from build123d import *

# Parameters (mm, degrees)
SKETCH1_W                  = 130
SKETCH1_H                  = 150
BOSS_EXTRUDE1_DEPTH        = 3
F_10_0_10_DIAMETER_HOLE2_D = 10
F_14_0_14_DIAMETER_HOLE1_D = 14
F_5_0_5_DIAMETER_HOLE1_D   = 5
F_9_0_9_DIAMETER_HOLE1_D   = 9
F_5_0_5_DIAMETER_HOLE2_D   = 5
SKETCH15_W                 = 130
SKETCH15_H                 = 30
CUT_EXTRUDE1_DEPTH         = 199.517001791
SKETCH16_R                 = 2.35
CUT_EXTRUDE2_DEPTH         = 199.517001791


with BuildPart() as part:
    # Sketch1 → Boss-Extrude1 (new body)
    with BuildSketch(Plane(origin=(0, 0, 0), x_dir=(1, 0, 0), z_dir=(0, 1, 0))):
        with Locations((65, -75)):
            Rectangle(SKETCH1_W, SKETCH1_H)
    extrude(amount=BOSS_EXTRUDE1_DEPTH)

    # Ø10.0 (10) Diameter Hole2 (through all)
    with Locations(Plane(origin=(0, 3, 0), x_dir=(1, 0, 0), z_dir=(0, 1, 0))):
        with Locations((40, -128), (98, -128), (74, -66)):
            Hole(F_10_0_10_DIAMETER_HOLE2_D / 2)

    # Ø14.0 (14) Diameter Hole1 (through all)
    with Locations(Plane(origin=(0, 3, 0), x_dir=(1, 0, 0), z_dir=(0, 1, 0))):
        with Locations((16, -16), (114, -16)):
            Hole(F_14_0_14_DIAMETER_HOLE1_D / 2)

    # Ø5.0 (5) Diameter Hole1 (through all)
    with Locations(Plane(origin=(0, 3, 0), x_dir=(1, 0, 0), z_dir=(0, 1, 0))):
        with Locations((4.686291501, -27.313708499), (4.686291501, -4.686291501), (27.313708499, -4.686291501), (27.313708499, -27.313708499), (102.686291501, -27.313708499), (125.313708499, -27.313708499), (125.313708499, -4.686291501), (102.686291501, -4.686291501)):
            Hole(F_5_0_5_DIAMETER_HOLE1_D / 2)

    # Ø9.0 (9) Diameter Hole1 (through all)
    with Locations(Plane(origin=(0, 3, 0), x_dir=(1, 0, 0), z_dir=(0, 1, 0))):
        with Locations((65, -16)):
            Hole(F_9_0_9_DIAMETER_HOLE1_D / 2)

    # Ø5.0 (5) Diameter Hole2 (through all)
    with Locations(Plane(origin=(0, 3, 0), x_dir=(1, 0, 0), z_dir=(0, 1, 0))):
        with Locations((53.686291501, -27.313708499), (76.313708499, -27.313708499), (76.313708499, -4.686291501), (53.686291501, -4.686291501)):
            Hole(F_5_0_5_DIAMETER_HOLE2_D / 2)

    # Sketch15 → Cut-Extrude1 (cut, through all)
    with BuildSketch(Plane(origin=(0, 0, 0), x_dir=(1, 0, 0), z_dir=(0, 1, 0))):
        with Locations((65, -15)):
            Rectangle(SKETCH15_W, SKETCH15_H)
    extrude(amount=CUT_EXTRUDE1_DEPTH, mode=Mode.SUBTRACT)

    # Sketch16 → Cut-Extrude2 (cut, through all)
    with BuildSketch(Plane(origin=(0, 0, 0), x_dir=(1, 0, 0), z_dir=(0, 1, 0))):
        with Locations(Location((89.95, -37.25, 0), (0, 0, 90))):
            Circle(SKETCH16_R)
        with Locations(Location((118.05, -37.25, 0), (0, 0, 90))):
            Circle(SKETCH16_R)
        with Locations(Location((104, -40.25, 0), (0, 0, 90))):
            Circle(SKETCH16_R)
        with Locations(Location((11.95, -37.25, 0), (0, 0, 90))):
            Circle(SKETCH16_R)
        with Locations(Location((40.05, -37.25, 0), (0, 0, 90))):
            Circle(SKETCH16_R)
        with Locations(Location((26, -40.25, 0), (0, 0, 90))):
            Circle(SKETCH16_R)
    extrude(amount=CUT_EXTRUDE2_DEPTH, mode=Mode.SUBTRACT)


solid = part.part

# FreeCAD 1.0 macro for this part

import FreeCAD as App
import Part
import Sketcher

V = App.Vector

doc = App.newDocument("Part")
params = doc.addObject("Spreadsheet::Sheet", "Params")
for row, (alias, value) in enumerate([
    ("sketch1_width", "130 mm"),
    ("sketch1_height", "150 mm"),
    ("pad1_length", "3 mm"),
    ("sketch2_diameter", "10 mm"),
    ("hole_diameter", "10 mm"),
    ("sketch3_diameter", "14 mm"),
    ("hole2_diameter", "14 mm"),
    ("sketch4_diameter", "5 mm"),
    ("hole3_diameter", "5 mm"),
    ("sketch5_diameter", "9 mm"),
    ("hole4_diameter", "9 mm"),
    ("sketch6_diameter", "5 mm"),
    ("hole5_diameter", "5 mm"),
    ("sketch7_width", "130 mm"),
    ("sketch7_height", "30 mm"),
    ("sketch8_diameter", "4.7 mm"),
], start=1):
    params.set(f"A{row}", alias)
    params.set(f"B{row}", "=" + value)
    params.setAlias(f"B{row}", alias)

body = doc.addObject("PartDesign::Body", "Body")

# Sketch on XZ plane
sketch1 = body.newObject("Sketcher::SketchObject", "Sketch")
sketch1.AttachmentSupport = (doc.getObject("XZ_Plane"), [""])
sketch1.MapMode = "FlatFace"
sketch1.addGeometry([
    Part.LineSegment(V(0, 0, 0), V(0, 150, 0)),
    Part.LineSegment(V(0, 150, 0), V(130, 150, 0)),
    Part.LineSegment(V(130, 150, 0), V(130, 0, 0)),
    Part.LineSegment(V(130, 0, 0), V(0, 0, 0)),
], False)
sketch1.addConstraint([
    Sketcher.Constraint("Coincident", 0, 2, 1, 1),
    Sketcher.Constraint("Coincident", 1, 2, 2, 1),
    Sketcher.Constraint("Coincident", 2, 2, 3, 1),
    Sketcher.Constraint("Coincident", 3, 2, 0, 1),
    Sketcher.Constraint("Vertical", 0),
    Sketcher.Constraint("Horizontal", 1),
    Sketcher.Constraint("Vertical", 2),
    Sketcher.Constraint("Horizontal", 3),
    Sketcher.Constraint("Coincident", 3, 2, -1, 1),
    Sketcher.Constraint("DistanceX", 1, 1, 1, 2, 130.0),
    Sketcher.Constraint("DistanceY", 0, 1, 0, 2, 150.0),
])
sketch1.setExpression("Constraints[9]", "Params.sketch1_width")
sketch1.setExpression("Constraints[10]", "Params.sketch1_height")
pad1 = body.newObject("PartDesign::Pad", "Pad")
pad1.Profile = sketch1
pad1.setExpression("Length", "Params.pad1_length")
pad1.Reversed = True

# Sketch on XZ plane
sketch2 = body.newObject("Sketcher::SketchObject", "Sketch001")
sketch2.AttachmentSupport = (doc.getObject("XZ_Plane"), [""])
sketch2.MapMode = "FlatFace"
sketch2.AttachmentOffset = App.Placement(V(0, 0, -3), App.Rotation())
sketch2.addGeometry([
    Part.Circle(V(40, 128, 0), V(0, 0, 1), 5),
    Part.Circle(V(98, 128, 0), V(0, 0, 1), 5),
    Part.Circle(V(74, 66, 0), V(0, 0, 1), 5),
], False)
sketch2.addConstraint([
    Sketcher.Constraint("Equal", 0, 1),
    Sketcher.Constraint("Equal", 1, 2),
    Sketcher.Constraint("Horizontal", 0, 3, 1, 3),
    Sketcher.Constraint("Diameter", 0, 10.0),
    Sketcher.Constraint("DistanceX", -1, 1, 0, 3, 40.0),
    Sketcher.Constraint("DistanceY", -1, 1, 0, 3, 128.0),
    Sketcher.Constraint("DistanceX", -1, 1, 1, 3, 98.0),
    Sketcher.Constraint("DistanceX", -1, 1, 2, 3, 74.0),
    Sketcher.Constraint("DistanceY", -1, 1, 2, 3, 66.0),
])
sketch2.setExpression("Constraints[3]", "Params.sketch2_diameter")
doc.recompute()
hole = body.newObject("PartDesign::Hole", "Hole")
hole.Profile = sketch2
hole.ThreadType = "None"
hole.setExpression("Diameter", "Params.hole_diameter")
hole.DepthType = "ThroughAll"
hole.Reversed = True

# Sketch on XZ plane
sketch3 = body.newObject("Sketcher::SketchObject", "Sketch002")
sketch3.AttachmentSupport = (doc.getObject("XZ_Plane"), [""])
sketch3.MapMode = "FlatFace"
sketch3.AttachmentOffset = App.Placement(V(0, 0, -3), App.Rotation())
sketch3.addGeometry([
    Part.Circle(V(16, 16, 0), V(0, 0, 1), 7),
    Part.Circle(V(114, 16, 0), V(0, 0, 1), 7),
], False)
sketch3.addConstraint([
    Sketcher.Constraint("Equal", 0, 1),
    Sketcher.Constraint("Horizontal", 0, 3, 1, 3),
    Sketcher.Constraint("Diameter", 0, 14.0),
    Sketcher.Constraint("DistanceX", -1, 1, 0, 3, 16.0),
    Sketcher.Constraint("DistanceY", -1, 1, 0, 3, 16.0),
    Sketcher.Constraint("DistanceX", -1, 1, 1, 3, 114.0),
])
sketch3.setExpression("Constraints[2]", "Params.sketch3_diameter")
doc.recompute()
hole2 = body.newObject("PartDesign::Hole", "Hole001")
hole2.Profile = sketch3
hole2.ThreadType = "None"
hole2.setExpression("Diameter", "Params.hole2_diameter")
hole2.DepthType = "ThroughAll"
hole2.Reversed = True

# Sketch on XZ plane
sketch4 = body.newObject("Sketcher::SketchObject", "Sketch003")
sketch4.AttachmentSupport = (doc.getObject("XZ_Plane"), [""])
sketch4.MapMode = "FlatFace"
sketch4.AttachmentOffset = App.Placement(V(0, 0, -3), App.Rotation())
sketch4.addGeometry([
    Part.Circle(V(4.686292, 27.313708, 0), V(0, 0, 1), 2.5),  # 0
    Part.Circle(V(4.686292, 4.686292, 0), V(0, 0, 1), 2.5),  # 1
    Part.Circle(V(27.313708, 4.686292, 0), V(0, 0, 1), 2.5),  # 2
    Part.Circle(V(27.313708, 27.313708, 0), V(0, 0, 1), 2.5),  # 3
    Part.Circle(V(102.686292, 27.313708, 0), V(0, 0, 1), 2.5),  # 4
    Part.Circle(V(125.313708, 27.313708, 0), V(0, 0, 1), 2.5),  # 5
    Part.Circle(V(125.313708, 4.686292, 0), V(0, 0, 1), 2.5),  # 6
    Part.Circle(V(102.686292, 4.686292, 0), V(0, 0, 1), 2.5),  # 7
], False)
sketch4.addConstraint([
    Sketcher.Constraint("Equal", 0, 1),
    Sketcher.Constraint("Equal", 1, 2),
    Sketcher.Constraint("Equal", 2, 3),
    Sketcher.Constraint("Equal", 3, 4),
    Sketcher.Constraint("Equal", 4, 5),
    Sketcher.Constraint("Equal", 5, 6),
    Sketcher.Constraint("Equal", 6, 7),
    Sketcher.Constraint("Horizontal", 1, 3, 2, 3),
    Sketcher.Constraint("Horizontal", 0, 3, 3, 3),
    Sketcher.Constraint("Horizontal", 3, 3, 4, 3),
    Sketcher.Constraint("Horizontal", 4, 3, 5, 3),
    Sketcher.Constraint("Horizontal", 2, 3, 6, 3),
    Sketcher.Constraint("Horizontal", 6, 3, 7, 3),
    Sketcher.Constraint("Vertical", 0, 3, 1, 3),
    Sketcher.Constraint("Vertical", 2, 3, 3, 3),
    Sketcher.Constraint("Vertical", 5, 3, 6, 3),
    Sketcher.Constraint("Vertical", 4, 3, 7, 3),
    Sketcher.Constraint("Diameter", 0, 5.0),
    Sketcher.Constraint("DistanceX", 0, 3, 4, 3, 98.0),
    Sketcher.Constraint("DistanceX", 3, 3, 5, 3, 98.0),
    Sketcher.Constraint("DistanceX", -1, 1, 0, 3, 4.686292),
    Sketcher.Constraint("DistanceY", -1, 1, 0, 3, 27.313708),
    Sketcher.Constraint("DistanceY", -1, 1, 1, 3, 4.686292),
    Sketcher.Constraint("DistanceX", -1, 1, 2, 3, 27.313708),
])
sketch4.setExpression("Constraints[17]", "Params.sketch4_diameter")
doc.recompute()
hole3 = body.newObject("PartDesign::Hole", "Hole002")
hole3.Profile = sketch4
hole3.ThreadType = "None"
hole3.setExpression("Diameter", "Params.hole3_diameter")
hole3.DepthType = "ThroughAll"
hole3.Reversed = True

# Sketch on XZ plane
sketch5 = body.newObject("Sketcher::SketchObject", "Sketch004")
sketch5.AttachmentSupport = (doc.getObject("XZ_Plane"), [""])
sketch5.MapMode = "FlatFace"
sketch5.AttachmentOffset = App.Placement(V(0, 0, -3), App.Rotation())
sketch5.addGeometry(Part.Circle(V(65, 16, 0), V(0, 0, 1), 4.5), False)
sketch5.addConstraint([
    Sketcher.Constraint("Diameter", 0, 9.0),
    Sketcher.Constraint("DistanceX", -1, 1, 0, 3, 65.0),
    Sketcher.Constraint("DistanceY", -1, 1, 0, 3, 16.0),
])
sketch5.setExpression("Constraints[0]", "Params.sketch5_diameter")
doc.recompute()
hole4 = body.newObject("PartDesign::Hole", "Hole003")
hole4.Profile = sketch5
hole4.ThreadType = "None"
hole4.setExpression("Diameter", "Params.hole4_diameter")
hole4.DepthType = "ThroughAll"
hole4.Reversed = True

# Sketch on XZ plane
sketch6 = body.newObject("Sketcher::SketchObject", "Sketch005")
sketch6.AttachmentSupport = (doc.getObject("XZ_Plane"), [""])
sketch6.MapMode = "FlatFace"
sketch6.AttachmentOffset = App.Placement(V(0, 0, -3), App.Rotation())
sketch6.addGeometry([
    Part.Circle(V(53.686292, 27.313708, 0), V(0, 0, 1), 2.5),
    Part.Circle(V(76.313708, 27.313708, 0), V(0, 0, 1), 2.5),
    Part.Circle(V(76.313708, 4.686292, 0), V(0, 0, 1), 2.5),
    Part.Circle(V(53.686292, 4.686292, 0), V(0, 0, 1), 2.5),
], False)
sketch6.addConstraint([
    Sketcher.Constraint("Equal", 0, 1),
    Sketcher.Constraint("Equal", 1, 2),
    Sketcher.Constraint("Equal", 2, 3),
    Sketcher.Constraint("Horizontal", 0, 3, 1, 3),
    Sketcher.Constraint("Horizontal", 2, 3, 3, 3),
    Sketcher.Constraint("Vertical", 1, 3, 2, 3),
    Sketcher.Constraint("Vertical", 0, 3, 3, 3),
    Sketcher.Constraint("Diameter", 0, 5.0),
    Sketcher.Constraint("DistanceX", -1, 1, 0, 3, 53.686292),
    Sketcher.Constraint("DistanceY", -1, 1, 0, 3, 27.313708),
    Sketcher.Constraint("DistanceX", -1, 1, 1, 3, 76.313708),
    Sketcher.Constraint("DistanceY", -1, 1, 2, 3, 4.686292),
])
sketch6.setExpression("Constraints[7]", "Params.sketch6_diameter")
doc.recompute()
hole5 = body.newObject("PartDesign::Hole", "Hole004")
hole5.Profile = sketch6
hole5.ThreadType = "None"
hole5.setExpression("Diameter", "Params.hole5_diameter")
hole5.DepthType = "ThroughAll"
hole5.Reversed = True

# Sketch on XZ plane
sketch7 = body.newObject("Sketcher::SketchObject", "Sketch006")
sketch7.AttachmentSupport = (doc.getObject("XZ_Plane"), [""])
sketch7.MapMode = "FlatFace"
sketch7.addGeometry([
    Part.LineSegment(V(0, 0, 0), V(0, 30, 0)),
    Part.LineSegment(V(0, 30, 0), V(130, 30, 0)),
    Part.LineSegment(V(130, 30, 0), V(130, 0, 0)),
    Part.LineSegment(V(130, 0, 0), V(0, 0, 0)),
], False)
sketch7.addConstraint([
    Sketcher.Constraint("Coincident", 0, 2, 1, 1),
    Sketcher.Constraint("Coincident", 1, 2, 2, 1),
    Sketcher.Constraint("Coincident", 2, 2, 3, 1),
    Sketcher.Constraint("Coincident", 3, 2, 0, 1),
    Sketcher.Constraint("Vertical", 0),
    Sketcher.Constraint("Horizontal", 1),
    Sketcher.Constraint("Vertical", 2),
    Sketcher.Constraint("Horizontal", 3),
    Sketcher.Constraint("Coincident", 3, 2, -1, 1),
    Sketcher.Constraint("DistanceX", 1, 1, 1, 2, 130.0),
    Sketcher.Constraint("DistanceY", 0, 1, 0, 2, 30.0),
])
sketch7.setExpression("Constraints[9]", "Params.sketch7_width")
sketch7.setExpression("Constraints[10]", "Params.sketch7_height")
pocket1 = body.newObject("PartDesign::Pocket", "Pocket")
pocket1.Profile = sketch7
pocket1.Type = "ThroughAll"

# Sketch on XZ plane
sketch8 = body.newObject("Sketcher::SketchObject", "Sketch007")
sketch8.AttachmentSupport = (doc.getObject("XZ_Plane"), [""])
sketch8.MapMode = "FlatFace"
sketch8.addGeometry([
    Part.Circle(V(89.95, 37.25, 0), V(0, 0, 1), 2.35),  # 0
    Part.Circle(V(118.05, 37.25, 0), V(0, 0, 1), 2.35),  # 1
    Part.Circle(V(104, 40.25, 0), V(0, 0, 1), 2.35),  # 2
    Part.Circle(V(11.95, 37.25, 0), V(0, 0, 1), 2.35),  # 3
    Part.Circle(V(40.05, 37.25, 0), V(0, 0, 1), 2.35),  # 4
    Part.Circle(V(26, 40.25, 0), V(0, 0, 1), 2.35),  # 5
], False)
sketch8.addConstraint([
    Sketcher.Constraint("Equal", 0, 1),
    Sketcher.Constraint("Equal", 1, 2),
    Sketcher.Constraint("Equal", 2, 3),
    Sketcher.Constraint("Equal", 3, 4),
    Sketcher.Constraint("Equal", 4, 5),
    Sketcher.Constraint("Horizontal", 0, 3, 1, 3),
    Sketcher.Constraint("Horizontal", 1, 3, 3, 3),
    Sketcher.Constraint("Horizontal", 3, 3, 4, 3),
    Sketcher.Constraint("Horizontal", 2, 3, 5, 3),
    Sketcher.Constraint("Diameter", 0, 4.7),
    Sketcher.Constraint("DistanceX", -1, 1, 2, 3, 104.0),
    Sketcher.Constraint("DistanceX", -1, 1, 5, 3, 26.0),
    Sketcher.Constraint("DistanceY", 0, 3, 2, 3, 3.0),
    Sketcher.Constraint("DistanceX", 3, 3, 0, 3, 78.0),
    Sketcher.Constraint("DistanceX", 4, 3, 1, 3, 78.0),
    Sketcher.Constraint("DistanceX", 0, 3, 1, 3, 28.1),
    Sketcher.Constraint("DistanceX", -1, 1, 0, 3, 89.95),
    Sketcher.Constraint("DistanceY", -1, 1, 0, 3, 37.25),
])
sketch8.setExpression("Constraints[9]", "Params.sketch8_diameter")
pocket2 = body.newObject("PartDesign::Pocket", "Pocket001")
pocket2.Profile = sketch8
pocket2.Type = "ThroughAll"

doc.recompute()
